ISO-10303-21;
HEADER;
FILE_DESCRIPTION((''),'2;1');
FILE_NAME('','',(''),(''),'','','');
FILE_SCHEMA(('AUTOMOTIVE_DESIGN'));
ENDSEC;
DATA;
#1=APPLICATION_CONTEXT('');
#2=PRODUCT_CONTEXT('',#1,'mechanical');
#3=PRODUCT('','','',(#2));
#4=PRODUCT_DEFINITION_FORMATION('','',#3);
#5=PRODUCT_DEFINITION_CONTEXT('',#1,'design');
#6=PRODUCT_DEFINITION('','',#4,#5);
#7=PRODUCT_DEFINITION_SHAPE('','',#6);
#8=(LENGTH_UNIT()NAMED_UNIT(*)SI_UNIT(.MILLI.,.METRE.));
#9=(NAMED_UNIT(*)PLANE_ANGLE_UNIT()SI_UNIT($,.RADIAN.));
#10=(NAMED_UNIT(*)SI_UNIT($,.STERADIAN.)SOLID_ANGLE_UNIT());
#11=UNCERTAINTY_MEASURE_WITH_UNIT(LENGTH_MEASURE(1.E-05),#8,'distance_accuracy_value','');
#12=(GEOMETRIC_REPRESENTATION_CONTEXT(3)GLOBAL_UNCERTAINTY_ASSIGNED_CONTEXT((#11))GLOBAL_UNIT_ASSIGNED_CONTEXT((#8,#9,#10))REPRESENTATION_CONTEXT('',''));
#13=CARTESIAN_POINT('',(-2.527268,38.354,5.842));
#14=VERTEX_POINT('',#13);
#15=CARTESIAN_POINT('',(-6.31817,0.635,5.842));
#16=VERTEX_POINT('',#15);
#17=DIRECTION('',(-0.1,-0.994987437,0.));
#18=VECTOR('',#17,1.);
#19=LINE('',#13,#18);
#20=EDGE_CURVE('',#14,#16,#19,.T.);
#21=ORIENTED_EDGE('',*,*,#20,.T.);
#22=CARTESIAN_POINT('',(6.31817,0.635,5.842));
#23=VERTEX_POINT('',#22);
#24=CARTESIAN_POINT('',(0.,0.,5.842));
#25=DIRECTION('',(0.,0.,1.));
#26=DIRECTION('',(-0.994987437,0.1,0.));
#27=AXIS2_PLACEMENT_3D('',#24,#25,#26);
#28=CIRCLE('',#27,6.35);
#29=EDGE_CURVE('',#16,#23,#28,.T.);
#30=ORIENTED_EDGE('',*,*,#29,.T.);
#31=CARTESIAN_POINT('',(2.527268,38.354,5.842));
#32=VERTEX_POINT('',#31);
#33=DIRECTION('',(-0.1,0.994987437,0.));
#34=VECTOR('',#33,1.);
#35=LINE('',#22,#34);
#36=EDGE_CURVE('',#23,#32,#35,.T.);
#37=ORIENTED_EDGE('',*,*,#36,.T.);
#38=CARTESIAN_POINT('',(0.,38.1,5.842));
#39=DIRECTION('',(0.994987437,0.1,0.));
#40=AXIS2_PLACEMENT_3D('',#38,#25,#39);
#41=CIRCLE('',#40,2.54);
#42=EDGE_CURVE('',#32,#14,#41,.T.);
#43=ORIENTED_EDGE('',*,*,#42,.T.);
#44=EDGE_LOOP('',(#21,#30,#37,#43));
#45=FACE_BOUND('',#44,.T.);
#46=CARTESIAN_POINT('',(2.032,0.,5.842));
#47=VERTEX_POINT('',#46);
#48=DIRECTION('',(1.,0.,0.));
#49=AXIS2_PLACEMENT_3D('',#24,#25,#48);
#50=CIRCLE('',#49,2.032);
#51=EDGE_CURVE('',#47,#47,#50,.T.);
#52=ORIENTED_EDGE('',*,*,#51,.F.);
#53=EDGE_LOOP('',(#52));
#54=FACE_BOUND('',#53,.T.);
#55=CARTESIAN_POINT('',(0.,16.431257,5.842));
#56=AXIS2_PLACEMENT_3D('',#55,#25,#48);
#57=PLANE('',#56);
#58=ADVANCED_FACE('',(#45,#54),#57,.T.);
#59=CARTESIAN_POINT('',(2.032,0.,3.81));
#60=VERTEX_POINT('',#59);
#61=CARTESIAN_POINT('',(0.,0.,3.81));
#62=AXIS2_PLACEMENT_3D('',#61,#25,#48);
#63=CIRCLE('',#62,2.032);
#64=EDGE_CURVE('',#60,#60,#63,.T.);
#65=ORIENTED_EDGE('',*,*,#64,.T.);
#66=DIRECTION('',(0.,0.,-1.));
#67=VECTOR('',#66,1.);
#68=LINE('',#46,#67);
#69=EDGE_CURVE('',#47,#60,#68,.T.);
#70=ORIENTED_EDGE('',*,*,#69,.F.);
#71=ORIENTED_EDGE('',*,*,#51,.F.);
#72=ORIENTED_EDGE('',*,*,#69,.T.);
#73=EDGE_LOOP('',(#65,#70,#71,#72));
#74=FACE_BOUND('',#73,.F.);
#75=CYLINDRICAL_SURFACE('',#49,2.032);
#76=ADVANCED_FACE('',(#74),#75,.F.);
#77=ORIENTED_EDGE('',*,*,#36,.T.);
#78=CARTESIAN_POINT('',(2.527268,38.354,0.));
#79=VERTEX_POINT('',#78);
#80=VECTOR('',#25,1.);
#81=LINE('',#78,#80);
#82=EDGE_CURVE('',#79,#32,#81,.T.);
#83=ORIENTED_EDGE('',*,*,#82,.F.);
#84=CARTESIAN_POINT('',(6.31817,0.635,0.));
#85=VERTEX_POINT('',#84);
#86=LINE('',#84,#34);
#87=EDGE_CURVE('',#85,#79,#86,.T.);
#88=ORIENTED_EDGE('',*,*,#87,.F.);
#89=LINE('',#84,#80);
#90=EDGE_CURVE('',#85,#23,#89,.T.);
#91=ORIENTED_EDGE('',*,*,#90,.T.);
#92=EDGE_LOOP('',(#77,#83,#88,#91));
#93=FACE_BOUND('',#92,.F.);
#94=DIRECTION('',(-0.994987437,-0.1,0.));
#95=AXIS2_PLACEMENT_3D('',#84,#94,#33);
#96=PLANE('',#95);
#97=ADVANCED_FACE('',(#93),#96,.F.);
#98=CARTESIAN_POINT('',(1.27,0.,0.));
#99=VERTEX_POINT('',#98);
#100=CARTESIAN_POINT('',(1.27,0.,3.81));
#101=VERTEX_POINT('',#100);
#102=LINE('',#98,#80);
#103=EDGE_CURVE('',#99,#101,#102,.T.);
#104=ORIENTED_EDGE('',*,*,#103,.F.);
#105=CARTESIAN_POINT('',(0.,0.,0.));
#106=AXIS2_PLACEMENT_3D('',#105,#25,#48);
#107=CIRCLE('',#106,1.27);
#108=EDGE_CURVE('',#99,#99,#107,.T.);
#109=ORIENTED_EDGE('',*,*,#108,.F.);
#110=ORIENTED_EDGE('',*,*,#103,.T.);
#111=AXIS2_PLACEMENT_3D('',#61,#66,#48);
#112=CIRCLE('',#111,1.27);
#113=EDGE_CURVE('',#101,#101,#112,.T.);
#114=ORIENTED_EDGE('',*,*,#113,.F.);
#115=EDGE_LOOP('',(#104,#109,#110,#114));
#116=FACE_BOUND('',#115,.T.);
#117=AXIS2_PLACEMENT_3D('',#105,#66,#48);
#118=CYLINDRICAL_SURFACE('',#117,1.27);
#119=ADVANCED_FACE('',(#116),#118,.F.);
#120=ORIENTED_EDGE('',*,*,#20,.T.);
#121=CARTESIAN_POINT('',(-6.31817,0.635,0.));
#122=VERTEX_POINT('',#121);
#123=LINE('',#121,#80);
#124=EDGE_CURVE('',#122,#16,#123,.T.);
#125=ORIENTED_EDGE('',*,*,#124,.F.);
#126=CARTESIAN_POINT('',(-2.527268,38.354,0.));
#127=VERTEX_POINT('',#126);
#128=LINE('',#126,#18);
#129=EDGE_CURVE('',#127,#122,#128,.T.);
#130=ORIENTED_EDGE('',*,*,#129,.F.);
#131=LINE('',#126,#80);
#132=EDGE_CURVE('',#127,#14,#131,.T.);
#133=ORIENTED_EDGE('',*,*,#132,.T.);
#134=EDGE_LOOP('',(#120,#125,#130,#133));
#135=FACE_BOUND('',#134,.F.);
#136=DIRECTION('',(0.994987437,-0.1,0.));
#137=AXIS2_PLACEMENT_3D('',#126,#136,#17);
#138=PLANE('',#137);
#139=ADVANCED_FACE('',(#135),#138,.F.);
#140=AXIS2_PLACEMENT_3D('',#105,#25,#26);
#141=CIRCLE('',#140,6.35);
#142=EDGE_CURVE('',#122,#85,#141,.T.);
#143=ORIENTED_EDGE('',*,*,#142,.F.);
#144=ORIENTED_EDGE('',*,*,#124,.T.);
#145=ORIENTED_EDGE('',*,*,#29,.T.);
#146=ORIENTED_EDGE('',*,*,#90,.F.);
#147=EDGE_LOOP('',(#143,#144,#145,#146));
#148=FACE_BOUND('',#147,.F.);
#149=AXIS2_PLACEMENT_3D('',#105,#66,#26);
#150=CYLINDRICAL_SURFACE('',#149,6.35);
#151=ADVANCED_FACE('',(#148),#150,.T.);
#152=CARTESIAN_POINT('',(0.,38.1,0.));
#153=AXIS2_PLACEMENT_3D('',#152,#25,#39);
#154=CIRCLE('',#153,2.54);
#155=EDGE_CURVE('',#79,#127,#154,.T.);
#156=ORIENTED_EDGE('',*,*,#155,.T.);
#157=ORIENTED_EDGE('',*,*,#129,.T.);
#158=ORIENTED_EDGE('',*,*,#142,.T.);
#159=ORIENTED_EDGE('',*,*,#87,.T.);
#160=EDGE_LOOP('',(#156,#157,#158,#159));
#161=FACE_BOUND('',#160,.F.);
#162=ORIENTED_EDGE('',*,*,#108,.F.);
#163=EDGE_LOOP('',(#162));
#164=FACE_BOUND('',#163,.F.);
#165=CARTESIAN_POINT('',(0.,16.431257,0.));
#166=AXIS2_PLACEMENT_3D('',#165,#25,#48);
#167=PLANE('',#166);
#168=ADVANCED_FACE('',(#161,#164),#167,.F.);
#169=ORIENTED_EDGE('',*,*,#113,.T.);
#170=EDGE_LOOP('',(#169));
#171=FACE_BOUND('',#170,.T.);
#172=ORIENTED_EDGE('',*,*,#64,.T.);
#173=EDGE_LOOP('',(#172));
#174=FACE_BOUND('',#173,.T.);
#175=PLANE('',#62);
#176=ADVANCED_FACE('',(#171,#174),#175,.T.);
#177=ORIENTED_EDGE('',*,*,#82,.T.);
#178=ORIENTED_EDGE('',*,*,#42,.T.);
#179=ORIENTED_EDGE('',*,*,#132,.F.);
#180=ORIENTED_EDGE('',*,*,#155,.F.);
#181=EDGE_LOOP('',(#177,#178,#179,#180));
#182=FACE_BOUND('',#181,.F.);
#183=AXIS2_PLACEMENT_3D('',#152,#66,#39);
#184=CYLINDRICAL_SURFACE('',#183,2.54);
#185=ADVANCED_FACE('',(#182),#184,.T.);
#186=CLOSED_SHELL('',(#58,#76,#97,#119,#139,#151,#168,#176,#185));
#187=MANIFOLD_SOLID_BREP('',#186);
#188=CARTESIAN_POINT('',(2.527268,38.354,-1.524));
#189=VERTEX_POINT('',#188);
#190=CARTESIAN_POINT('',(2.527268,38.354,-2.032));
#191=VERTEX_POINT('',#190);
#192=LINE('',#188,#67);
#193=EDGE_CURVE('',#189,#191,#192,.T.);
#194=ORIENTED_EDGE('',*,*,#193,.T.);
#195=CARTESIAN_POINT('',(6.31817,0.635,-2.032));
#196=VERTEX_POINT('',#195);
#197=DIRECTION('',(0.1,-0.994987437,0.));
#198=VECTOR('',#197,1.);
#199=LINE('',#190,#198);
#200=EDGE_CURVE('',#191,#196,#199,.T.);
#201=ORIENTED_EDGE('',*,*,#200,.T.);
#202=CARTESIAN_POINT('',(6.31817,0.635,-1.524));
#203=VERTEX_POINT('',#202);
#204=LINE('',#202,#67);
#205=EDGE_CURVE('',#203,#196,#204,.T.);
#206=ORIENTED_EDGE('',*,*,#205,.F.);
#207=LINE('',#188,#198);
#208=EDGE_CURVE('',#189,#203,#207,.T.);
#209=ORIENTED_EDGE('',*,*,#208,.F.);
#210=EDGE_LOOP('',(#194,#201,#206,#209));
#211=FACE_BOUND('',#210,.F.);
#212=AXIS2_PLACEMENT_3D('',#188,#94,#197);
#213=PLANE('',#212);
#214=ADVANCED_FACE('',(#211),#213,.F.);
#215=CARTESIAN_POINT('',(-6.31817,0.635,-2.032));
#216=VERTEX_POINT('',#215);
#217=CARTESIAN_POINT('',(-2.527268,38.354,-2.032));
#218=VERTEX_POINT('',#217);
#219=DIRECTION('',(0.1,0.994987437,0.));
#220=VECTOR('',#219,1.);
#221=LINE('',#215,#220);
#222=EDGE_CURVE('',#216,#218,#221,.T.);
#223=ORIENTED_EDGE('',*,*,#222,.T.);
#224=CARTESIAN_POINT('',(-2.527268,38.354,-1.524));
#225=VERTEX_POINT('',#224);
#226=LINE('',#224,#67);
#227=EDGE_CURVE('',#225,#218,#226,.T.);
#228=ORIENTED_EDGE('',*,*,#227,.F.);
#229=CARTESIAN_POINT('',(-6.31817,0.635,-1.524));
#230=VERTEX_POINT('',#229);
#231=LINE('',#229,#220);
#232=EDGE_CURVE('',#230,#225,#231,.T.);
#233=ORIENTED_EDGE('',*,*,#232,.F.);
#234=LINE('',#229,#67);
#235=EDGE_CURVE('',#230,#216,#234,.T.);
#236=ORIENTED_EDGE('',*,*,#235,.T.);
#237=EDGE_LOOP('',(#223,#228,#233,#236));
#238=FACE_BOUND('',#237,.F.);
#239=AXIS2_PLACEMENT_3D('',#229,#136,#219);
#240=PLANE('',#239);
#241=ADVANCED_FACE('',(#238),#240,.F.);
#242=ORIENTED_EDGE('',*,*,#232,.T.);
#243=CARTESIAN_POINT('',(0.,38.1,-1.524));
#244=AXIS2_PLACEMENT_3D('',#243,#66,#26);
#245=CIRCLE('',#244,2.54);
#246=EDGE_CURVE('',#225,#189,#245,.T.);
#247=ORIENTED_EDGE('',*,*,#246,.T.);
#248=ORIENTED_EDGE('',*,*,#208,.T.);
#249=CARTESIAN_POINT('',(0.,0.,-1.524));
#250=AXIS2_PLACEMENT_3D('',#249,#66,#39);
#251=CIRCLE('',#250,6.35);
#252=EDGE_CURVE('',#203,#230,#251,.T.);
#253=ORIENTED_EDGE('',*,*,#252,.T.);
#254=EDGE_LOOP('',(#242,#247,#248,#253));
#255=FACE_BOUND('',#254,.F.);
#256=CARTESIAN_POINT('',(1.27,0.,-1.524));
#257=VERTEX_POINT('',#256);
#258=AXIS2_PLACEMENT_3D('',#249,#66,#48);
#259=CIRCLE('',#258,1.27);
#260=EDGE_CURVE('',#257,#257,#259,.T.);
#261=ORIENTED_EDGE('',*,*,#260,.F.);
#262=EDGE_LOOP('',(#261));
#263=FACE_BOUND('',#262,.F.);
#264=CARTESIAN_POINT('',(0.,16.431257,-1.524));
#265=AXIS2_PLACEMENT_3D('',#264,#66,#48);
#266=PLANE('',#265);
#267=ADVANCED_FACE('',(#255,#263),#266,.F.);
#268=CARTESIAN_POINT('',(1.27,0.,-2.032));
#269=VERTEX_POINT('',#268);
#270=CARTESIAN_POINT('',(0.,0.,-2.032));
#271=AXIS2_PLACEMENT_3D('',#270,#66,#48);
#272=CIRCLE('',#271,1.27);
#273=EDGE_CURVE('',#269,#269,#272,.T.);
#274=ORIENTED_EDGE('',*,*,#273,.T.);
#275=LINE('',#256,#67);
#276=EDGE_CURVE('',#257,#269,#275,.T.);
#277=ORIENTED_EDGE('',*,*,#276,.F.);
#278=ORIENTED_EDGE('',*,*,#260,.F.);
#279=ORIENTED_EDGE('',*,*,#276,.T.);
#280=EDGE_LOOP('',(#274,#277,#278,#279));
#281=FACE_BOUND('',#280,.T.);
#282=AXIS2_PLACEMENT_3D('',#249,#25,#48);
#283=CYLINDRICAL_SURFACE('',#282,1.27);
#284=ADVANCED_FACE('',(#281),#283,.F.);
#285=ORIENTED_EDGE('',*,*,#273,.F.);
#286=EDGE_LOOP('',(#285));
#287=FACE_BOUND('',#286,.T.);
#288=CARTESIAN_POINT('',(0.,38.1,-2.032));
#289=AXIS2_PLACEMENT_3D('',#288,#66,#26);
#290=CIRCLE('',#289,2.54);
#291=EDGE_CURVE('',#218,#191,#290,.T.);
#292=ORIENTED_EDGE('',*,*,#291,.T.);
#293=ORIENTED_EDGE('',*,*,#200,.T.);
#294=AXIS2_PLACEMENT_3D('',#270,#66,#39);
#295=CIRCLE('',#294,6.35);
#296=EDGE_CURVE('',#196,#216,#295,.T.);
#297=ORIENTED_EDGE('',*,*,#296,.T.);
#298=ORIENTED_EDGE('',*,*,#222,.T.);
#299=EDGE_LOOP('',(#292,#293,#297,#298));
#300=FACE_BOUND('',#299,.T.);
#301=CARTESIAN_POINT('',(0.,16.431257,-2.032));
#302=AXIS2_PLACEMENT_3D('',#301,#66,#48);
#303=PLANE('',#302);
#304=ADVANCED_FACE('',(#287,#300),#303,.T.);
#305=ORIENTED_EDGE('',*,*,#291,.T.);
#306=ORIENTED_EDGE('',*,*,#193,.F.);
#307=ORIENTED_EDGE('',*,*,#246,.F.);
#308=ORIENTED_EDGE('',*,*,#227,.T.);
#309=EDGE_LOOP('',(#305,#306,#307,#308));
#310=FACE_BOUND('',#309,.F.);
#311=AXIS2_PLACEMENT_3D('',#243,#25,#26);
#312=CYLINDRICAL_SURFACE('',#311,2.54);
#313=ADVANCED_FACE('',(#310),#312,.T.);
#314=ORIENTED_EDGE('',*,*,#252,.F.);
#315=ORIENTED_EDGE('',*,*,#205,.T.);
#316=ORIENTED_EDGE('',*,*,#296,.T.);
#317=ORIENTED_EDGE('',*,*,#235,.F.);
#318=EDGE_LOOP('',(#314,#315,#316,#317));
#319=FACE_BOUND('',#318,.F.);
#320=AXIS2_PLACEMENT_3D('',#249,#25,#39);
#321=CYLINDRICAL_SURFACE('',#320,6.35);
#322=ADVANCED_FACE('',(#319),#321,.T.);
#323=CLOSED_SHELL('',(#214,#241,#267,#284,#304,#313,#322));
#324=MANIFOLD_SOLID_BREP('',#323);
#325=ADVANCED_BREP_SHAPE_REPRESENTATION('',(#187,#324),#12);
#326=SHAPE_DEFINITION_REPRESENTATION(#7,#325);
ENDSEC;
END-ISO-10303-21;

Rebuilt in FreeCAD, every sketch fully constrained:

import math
import FreeCAD as App
import Part
import Sketcher

V = App.Vector
Q = App.Units.Quantity

doc = App.newDocument("Part")
body = doc.addObject("PartDesign::Body", "Body")

# Sketch on XY plane
sketch1 = doc.addObject("Sketcher::SketchObject", "Sketch")
body.addObject(sketch1)
sketch1.AttachmentSupport = (doc.XY_Plane, [""])
sketch1.MapMode = "FlatFace"
sketch1.addGeometry([
    Part.LineSegment(V(-2.527268, 38.354, 0), V(-6.31817, 0.635, 0)),  # 0
    Part.ArcOfCircle(Part.Circle(V(0, 0, 0), V(0, 0, 1), 6.35), math.radians(174.26083), math.radians(365.73917)),  # 1
    Part.LineSegment(V(6.31817, 0.635, 0), V(2.527268, 38.354, 0)),  # 2
    Part.ArcOfCircle(Part.Circle(V(0, 38.1, 0), V(0, 0, 1), 2.54), math.radians(5.73917), math.radians(174.26083)),  # 3
    Part.Circle(V(0, 0, 0), V(0, 0, 1), 1.27),  # 4
], False)
sketch1.addConstraint([
    Sketcher.Constraint("Tangent", 0, 2, 1, 1),
    Sketcher.Constraint("Tangent", 1, 2, 2, 1),
    Sketcher.Constraint("Tangent", 2, 2, 3, 1),
    Sketcher.Constraint("Tangent", 3, 2, 0, 1),
    Sketcher.Constraint("Coincident", 1, 3, -1, 1),
    Sketcher.Constraint("Coincident", 4, 3, -1, 1),
    Sketcher.Constraint("PointOnObject", 3, 3, -2),
    Sketcher.Constraint("Diameter", 4, Q("0.1 in")),
    Sketcher.Constraint("Radius", 3, Q("0.1 in")),
    Sketcher.Constraint("Radius", 1, Q("0.25 in")),
    Sketcher.Constraint("DistanceY", -1, 1, 3, 3, Q("1.5 in")),
])
pad1 = doc.addObject("PartDesign::Pad", "Pad")
body.addObject(pad1)
pad1.Profile = sketch1
pad1.Length = Q("0.23 in")

# Sketch on XY plane
sketch2 = doc.addObject("Sketcher::SketchObject", "Sketch001")
body.addObject(sketch2)
sketch2.AttachmentSupport = (doc.XY_Plane, [""])
sketch2.MapMode = "FlatFace"
sketch2.AttachmentOffset = App.Placement(V(0, 0, 0.23 * 25.4), App.Rotation())
sketch2.addGeometry(Part.Circle(V(0, 0, 0), V(0, 0, 1), 2.032), False)
sketch2.addConstraint([
    Sketcher.Constraint("Coincident", 0, 3, -1, 1),
    Sketcher.Constraint("Diameter", 0, Q("0.16 in")),
])
pocket1 = doc.addObject("PartDesign::Pocket", "Pocket")
body.addObject(pocket1)
pocket1.Profile = sketch2
pocket1.Length = Q("0.08 in")
body2 = doc.addObject("PartDesign::Body", "Body001")

# Sketch on XY plane
sketch3 = doc.addObject("Sketcher::SketchObject", "Sketch002")
body2.addObject(sketch3)
sketch3.AttachmentSupport = (doc.getObject("XY_Plane001"), [""])
sketch3.MapMode = "FlatFace"
sketch3.AttachmentOffset = App.Placement(V(0, 0, -0.06 * 25.4), App.Rotation())
sketch3.addGeometry([
    Part.ArcOfCircle(Part.Circle(V(0, 0, 0), V(0, 0, 1), 6.35), math.radians(174.26083), math.radians(365.73917)),  # 0
    Part.LineSegment(V(-6.31817, 0.635, 0), V(-2.527268, 38.354, 0)),  # 1
    Part.ArcOfCircle(Part.Circle(V(0, 38.1, 0), V(0, 0, 1), 2.54), math.radians(5.73917), math.radians(174.26083)),  # 2
    Part.LineSegment(V(2.527268, 38.354, 0), V(6.31817, 0.635, 0)),  # 3
    Part.Circle(V(0, 0, 0), V(0, 0, 1), 1.27),  # 4
], False)
sketch3.addConstraint([
    Sketcher.Constraint("Tangent", 0, 1, 1, 1),
    Sketcher.Constraint("Tangent", 1, 2, 2, 2),
    Sketcher.Constraint("Tangent", 2, 1, 3, 1),
    Sketcher.Constraint("Tangent", 3, 2, 0, 2),
    Sketcher.Constraint("Coincident", 0, 3, -1, 1),
    Sketcher.Constraint("Coincident", 4, 3, -1, 1),
    Sketcher.Constraint("PointOnObject", 2, 3, -2),
    Sketcher.Constraint("Diameter", 4, Q("0.1 in")),
    Sketcher.Constraint("Radius", 2, Q("0.1 in")),
    Sketcher.Constraint("Radius", 0, Q("0.25 in")),
    Sketcher.Constraint("DistanceY", -1, 1, 2, 3, Q("1.5 in")),
])
pad2 = doc.addObject("PartDesign::Pad", "Pad001")
body2.addObject(pad2)
pad2.Profile = sketch3
pad2.Length = Q("0.02 in")
pad2.Reversed = True

doc.recompute()
